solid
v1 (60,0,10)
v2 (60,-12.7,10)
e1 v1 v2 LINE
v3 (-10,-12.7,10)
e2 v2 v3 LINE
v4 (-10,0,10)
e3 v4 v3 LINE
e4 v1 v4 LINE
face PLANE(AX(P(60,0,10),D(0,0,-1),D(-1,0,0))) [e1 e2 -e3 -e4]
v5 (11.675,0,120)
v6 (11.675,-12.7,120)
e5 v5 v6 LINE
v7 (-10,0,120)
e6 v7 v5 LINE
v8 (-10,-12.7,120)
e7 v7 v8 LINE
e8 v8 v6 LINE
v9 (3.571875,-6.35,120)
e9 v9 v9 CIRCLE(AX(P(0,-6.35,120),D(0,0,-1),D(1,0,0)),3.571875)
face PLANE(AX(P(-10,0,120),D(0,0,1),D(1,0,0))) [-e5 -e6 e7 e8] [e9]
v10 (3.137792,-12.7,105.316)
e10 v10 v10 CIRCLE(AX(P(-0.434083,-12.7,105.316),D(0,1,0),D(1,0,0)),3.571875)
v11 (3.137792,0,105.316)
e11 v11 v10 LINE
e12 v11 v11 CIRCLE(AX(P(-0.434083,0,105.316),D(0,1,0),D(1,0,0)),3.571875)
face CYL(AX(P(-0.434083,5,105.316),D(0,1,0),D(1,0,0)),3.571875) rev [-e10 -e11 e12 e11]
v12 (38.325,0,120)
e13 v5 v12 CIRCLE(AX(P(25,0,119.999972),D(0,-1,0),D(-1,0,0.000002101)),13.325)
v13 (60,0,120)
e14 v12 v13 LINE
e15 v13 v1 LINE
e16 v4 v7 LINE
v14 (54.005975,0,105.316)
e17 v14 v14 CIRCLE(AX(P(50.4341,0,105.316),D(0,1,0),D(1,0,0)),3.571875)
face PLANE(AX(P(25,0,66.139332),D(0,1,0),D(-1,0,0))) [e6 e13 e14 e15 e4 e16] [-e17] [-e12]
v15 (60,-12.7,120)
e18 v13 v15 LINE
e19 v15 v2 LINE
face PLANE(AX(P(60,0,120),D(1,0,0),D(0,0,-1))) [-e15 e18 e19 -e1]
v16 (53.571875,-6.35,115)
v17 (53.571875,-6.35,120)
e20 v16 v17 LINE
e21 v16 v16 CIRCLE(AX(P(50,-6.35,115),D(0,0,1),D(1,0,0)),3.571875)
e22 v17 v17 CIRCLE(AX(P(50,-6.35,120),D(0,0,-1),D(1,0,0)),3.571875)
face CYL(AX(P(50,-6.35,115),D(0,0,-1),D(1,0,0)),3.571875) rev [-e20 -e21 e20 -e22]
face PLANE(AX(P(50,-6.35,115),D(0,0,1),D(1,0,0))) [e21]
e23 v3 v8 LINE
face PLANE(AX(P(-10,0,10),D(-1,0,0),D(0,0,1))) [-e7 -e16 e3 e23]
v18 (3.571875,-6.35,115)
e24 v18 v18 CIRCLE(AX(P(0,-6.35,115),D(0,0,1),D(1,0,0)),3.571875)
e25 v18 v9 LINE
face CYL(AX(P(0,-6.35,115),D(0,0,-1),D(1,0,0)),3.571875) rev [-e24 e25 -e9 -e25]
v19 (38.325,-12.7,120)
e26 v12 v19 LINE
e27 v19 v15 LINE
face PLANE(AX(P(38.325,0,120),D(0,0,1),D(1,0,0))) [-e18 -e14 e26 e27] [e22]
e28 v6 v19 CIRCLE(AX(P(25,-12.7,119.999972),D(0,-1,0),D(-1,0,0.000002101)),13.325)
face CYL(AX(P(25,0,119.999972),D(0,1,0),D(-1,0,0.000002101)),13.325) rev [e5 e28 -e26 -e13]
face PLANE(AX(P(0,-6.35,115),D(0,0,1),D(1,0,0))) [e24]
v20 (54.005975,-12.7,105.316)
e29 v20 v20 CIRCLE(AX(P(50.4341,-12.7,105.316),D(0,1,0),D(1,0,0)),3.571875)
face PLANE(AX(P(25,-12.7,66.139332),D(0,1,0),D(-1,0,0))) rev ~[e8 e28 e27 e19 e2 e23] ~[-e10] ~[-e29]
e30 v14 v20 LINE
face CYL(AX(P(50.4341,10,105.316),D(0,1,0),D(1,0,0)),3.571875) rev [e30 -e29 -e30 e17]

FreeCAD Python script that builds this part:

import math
import FreeCAD as App
import Part
import Sketcher

V = App.Vector

doc = App.newDocument("Part")
body = doc.addObject("PartDesign::Body", "Body")

sketch1 = body.newObject("Sketcher::SketchObject", "Sketch")
sketch1.AttachmentSupport = (doc.getObject("XY_Plane"), [""])
sketch1.MapMode = "FlatFace"
sketch1.addGeometry(Part.Circle(V(0, 0, 0), V(0, 0, 1), 3.6), False)
sketch1.addConstraint([
    Sketcher.Constraint("Coincident", 0, 3, -1, 1),
    Sketcher.Constraint("Diameter", 0, 7.14375),
])
pad1 = body.newObject("PartDesign::Pad", "Pad")
pad1.Profile = sketch1
pad1.Length = 6
body2 = doc.addObject("PartDesign::Body", "Body001")
doc.recompute()

body.Placement = App.Placement(V(150, -6.35, 115), App.Rotation(V(0, 0, 1), 0))
boolean = body2.newObject("PartDesign::Boolean", "Boolean")
boolean.Type = "Fuse"
boolean.addObjects([body])
body3 = doc.addObject("PartDesign::Body", "Body002")

sketch2 = body3.newObject("Sketcher::SketchObject", "Sketch001")
sketch2.AttachmentSupport = (doc.getObject("XY_Plane002"), [""])
sketch2.MapMode = "FlatFace"
sketch2.addGeometry(Part.Circle(V(0, 0, 0), V(0, 0, 1), 3.6), False)
sketch2.addConstraint([
    Sketcher.Constraint("Coincident", 0, 3, -1, 1),
    Sketcher.Constraint("Diameter", 0, 7.14375),
])
pad2 = body3.newObject("PartDesign::Pad", "Pad001")
pad2.Profile = sketch2
pad2.Length = 6
body4 = doc.addObject("PartDesign::Body", "Body003")
doc.recompute()

body3.Placement = App.Placement(V(100, -6.35, 115), App.Rotation(V(0, 0, 1), 0))
boolean2 = body4.newObject("PartDesign::Boolean", "Boolean001")
boolean2.Type = "Fuse"
boolean2.addObjects([body3])
body5 = doc.addObject("PartDesign::Body", "Body004")

sketch3 = body5.newObject("Sketcher::SketchObject", "Sketch002")
sketch3.AttachmentSupport = (doc.getObject("XZ_Plane004"), [""])
sketch3.MapMode = "FlatFace"
sketch3.addGeometry(Part.Circle(V(0, 0, 0), V(0, 0, 1), 3.6), False)
sketch3.addConstraint([
    Sketcher.Constraint("Coincident", 0, 3, -1, 1),
    Sketcher.Constraint("Diameter", 0, 7.14375),
])
pad3 = body5.newObject("PartDesign::Pad", "Pad002")
pad3.Profile = sketch3
pad3.Length = 50
body6 = doc.addObject("PartDesign::Body", "Body005")
doc.recompute()

body5.Placement = App.Placement(V(50.4341, 10, 105.316), App.Rotation(V(0, 0, 1), 0))
boolean3 = body6.newObject("PartDesign::Boolean", "Boolean002")
boolean3.Type = "Fuse"
boolean3.addObjects([body5])
body7 = doc.addObject("PartDesign::Body", "Body006")

sketch4 = body7.newObject("Sketcher::SketchObject", "Sketch003")
sketch4.AttachmentSupport = (doc.getObject("XZ_Plane006"), [""])
sketch4.MapMode = "FlatFace"
sketch4.addGeometry(Part.Circle(V(0, 0, 0), V(0, 0, 1), 3.6), False)
sketch4.addConstraint([
    Sketcher.Constraint("Coincident", 0, 3, -1, 1),
    Sketcher.Constraint("Diameter", 0, 7.14375),
])
pad4 = body7.newObject("PartDesign::Pad", "Pad003")
pad4.Profile = sketch4
pad4.Length = 33.7
body8 = doc.addObject("PartDesign::Body", "Body007")
doc.recompute()

body7.Placement = App.Placement(V(-0.434083, 5, 105.316), App.Rotation(V(0, 0, 1), 0))
boolean4 = body8.newObject("PartDesign::Boolean", "Boolean003")
boolean4.Type = "Fuse"
boolean4.addObjects([body7])
body9 = doc.addObject("PartDesign::Body", "Body008")

sketch5 = body9.newObject("Sketcher::SketchObject", "Sketch004")
sketch5.AttachmentSupport = (doc.getObject("XZ_Plane008"), [""])
sketch5.MapMode = "FlatFace"
sketch5.addGeometry([
    Part.LineSegment(V(0, 110, 0), V(0, 0, 0)),
    Part.LineSegment(V(0, 0, 0), V(70, 0, 0)),
    Part.LineSegment(V(70, 0, 0), V(70, 110, 0)),
    Part.LineSegment(V(70, 110, 0), V(48, 110, 0)),
    Part.ArcOfCircle(Part.Circle(V(35, 110, 0), V(0, 0, 1), 13), math.radians(180), math.radians(360)),
    Part.LineSegment(V(22, 110, 0), V(0, 110, 0)),
], False)
sketch5.addConstraint([
    Sketcher.Constraint("Coincident", 0, 2, 1, 1),
    Sketcher.Constraint("Coincident", 1, 2, 2, 1),
    Sketcher.Constraint("Coincident", 2, 2, 3, 1),
    Sketcher.Constraint("Coincident", 3, 2, 4, 2),
    Sketcher.Constraint("Coincident", 4, 1, 5, 1),
    Sketcher.Constraint("Coincident", 5, 2, 0, 1),
    Sketcher.Constraint("Vertical", 0),
    Sketcher.Constraint("Horizontal", 1),
    Sketcher.Constraint("Vertical", 2),
    Sketcher.Constraint("Horizontal", 3),
    Sketcher.Constraint("Horizontal", 5),
    Sketcher.Constraint("Coincident", 0, 2, -1, 1),
    Sketcher.Constraint("Horizontal", 3, 2, 4, 1),
    Sketcher.Constraint("Equal", 3, 5),
    Sketcher.Constraint("DistanceX", 1, 1, 1, 2, 70.0),
    Sketcher.Constraint("DistanceY", 0, 2, 0, 1, 110.0),
    Sketcher.Constraint("Radius", 4, 13.325),
    Sketcher.Constraint("DistanceY", -1, 1, 4, 3, 109.999972),
])
pad5 = body9.newObject("PartDesign::Pad", "Pad004")
pad5.Profile = sketch5
pad5.Length = 12.7
body10 = doc.addObject("PartDesign::Body", "Body009")
doc.recompute()

body9.Placement = App.Placement(V(-10, 0, 10), App.Rotation(V(0, 0, 1), 0))
boolean5 = body10.newObject("PartDesign::Boolean", "Boolean004")
boolean5.Type = "Fuse"
boolean5.addObjects([body9])
doc.recompute()

boolean6 = body10.newObject("PartDesign::Boolean", "Boolean005")
boolean6.Type = "Cut"
boolean6.addObjects([body8])
doc.recompute()

boolean7 = body10.newObject("PartDesign::Boolean", "Boolean006")
boolean7.Type = "Cut"
boolean7.addObjects([body6])
body11 = doc.addObject("PartDesign::Body", "Body010")
doc.recompute()

body10.Placement = App.Placement(V(100, 0, 0), App.Rotation(V(0, 0, 1), 0))
boolean8 = body11.newObject("PartDesign::Boolean", "Boolean007")
boolean8.Type = "Fuse"
boolean8.addObjects([body10])
doc.recompute()

boolean9 = body11.newObject("PartDesign::Boolean", "Boolean008")
boolean9.Type = "Cut"
boolean9.addObjects([body4])
doc.recompute()

boolean10 = body11.newObject("PartDesign::Boolean", "Boolean009")
boolean10.Type = "Cut"
boolean10.addObjects([body2])
body12 = doc.addObject("PartDesign::Body", "Body011")
doc.recompute()

body11.Placement = App.Placement(V(-100, 0, 0), App.Rotation(V(0, 0, 1), 0))
boolean11 = body12.newObject("PartDesign::Boolean", "Boolean010")
boolean11.Type = "Fuse"
boolean11.addObjects([body11])

doc.recompute()
